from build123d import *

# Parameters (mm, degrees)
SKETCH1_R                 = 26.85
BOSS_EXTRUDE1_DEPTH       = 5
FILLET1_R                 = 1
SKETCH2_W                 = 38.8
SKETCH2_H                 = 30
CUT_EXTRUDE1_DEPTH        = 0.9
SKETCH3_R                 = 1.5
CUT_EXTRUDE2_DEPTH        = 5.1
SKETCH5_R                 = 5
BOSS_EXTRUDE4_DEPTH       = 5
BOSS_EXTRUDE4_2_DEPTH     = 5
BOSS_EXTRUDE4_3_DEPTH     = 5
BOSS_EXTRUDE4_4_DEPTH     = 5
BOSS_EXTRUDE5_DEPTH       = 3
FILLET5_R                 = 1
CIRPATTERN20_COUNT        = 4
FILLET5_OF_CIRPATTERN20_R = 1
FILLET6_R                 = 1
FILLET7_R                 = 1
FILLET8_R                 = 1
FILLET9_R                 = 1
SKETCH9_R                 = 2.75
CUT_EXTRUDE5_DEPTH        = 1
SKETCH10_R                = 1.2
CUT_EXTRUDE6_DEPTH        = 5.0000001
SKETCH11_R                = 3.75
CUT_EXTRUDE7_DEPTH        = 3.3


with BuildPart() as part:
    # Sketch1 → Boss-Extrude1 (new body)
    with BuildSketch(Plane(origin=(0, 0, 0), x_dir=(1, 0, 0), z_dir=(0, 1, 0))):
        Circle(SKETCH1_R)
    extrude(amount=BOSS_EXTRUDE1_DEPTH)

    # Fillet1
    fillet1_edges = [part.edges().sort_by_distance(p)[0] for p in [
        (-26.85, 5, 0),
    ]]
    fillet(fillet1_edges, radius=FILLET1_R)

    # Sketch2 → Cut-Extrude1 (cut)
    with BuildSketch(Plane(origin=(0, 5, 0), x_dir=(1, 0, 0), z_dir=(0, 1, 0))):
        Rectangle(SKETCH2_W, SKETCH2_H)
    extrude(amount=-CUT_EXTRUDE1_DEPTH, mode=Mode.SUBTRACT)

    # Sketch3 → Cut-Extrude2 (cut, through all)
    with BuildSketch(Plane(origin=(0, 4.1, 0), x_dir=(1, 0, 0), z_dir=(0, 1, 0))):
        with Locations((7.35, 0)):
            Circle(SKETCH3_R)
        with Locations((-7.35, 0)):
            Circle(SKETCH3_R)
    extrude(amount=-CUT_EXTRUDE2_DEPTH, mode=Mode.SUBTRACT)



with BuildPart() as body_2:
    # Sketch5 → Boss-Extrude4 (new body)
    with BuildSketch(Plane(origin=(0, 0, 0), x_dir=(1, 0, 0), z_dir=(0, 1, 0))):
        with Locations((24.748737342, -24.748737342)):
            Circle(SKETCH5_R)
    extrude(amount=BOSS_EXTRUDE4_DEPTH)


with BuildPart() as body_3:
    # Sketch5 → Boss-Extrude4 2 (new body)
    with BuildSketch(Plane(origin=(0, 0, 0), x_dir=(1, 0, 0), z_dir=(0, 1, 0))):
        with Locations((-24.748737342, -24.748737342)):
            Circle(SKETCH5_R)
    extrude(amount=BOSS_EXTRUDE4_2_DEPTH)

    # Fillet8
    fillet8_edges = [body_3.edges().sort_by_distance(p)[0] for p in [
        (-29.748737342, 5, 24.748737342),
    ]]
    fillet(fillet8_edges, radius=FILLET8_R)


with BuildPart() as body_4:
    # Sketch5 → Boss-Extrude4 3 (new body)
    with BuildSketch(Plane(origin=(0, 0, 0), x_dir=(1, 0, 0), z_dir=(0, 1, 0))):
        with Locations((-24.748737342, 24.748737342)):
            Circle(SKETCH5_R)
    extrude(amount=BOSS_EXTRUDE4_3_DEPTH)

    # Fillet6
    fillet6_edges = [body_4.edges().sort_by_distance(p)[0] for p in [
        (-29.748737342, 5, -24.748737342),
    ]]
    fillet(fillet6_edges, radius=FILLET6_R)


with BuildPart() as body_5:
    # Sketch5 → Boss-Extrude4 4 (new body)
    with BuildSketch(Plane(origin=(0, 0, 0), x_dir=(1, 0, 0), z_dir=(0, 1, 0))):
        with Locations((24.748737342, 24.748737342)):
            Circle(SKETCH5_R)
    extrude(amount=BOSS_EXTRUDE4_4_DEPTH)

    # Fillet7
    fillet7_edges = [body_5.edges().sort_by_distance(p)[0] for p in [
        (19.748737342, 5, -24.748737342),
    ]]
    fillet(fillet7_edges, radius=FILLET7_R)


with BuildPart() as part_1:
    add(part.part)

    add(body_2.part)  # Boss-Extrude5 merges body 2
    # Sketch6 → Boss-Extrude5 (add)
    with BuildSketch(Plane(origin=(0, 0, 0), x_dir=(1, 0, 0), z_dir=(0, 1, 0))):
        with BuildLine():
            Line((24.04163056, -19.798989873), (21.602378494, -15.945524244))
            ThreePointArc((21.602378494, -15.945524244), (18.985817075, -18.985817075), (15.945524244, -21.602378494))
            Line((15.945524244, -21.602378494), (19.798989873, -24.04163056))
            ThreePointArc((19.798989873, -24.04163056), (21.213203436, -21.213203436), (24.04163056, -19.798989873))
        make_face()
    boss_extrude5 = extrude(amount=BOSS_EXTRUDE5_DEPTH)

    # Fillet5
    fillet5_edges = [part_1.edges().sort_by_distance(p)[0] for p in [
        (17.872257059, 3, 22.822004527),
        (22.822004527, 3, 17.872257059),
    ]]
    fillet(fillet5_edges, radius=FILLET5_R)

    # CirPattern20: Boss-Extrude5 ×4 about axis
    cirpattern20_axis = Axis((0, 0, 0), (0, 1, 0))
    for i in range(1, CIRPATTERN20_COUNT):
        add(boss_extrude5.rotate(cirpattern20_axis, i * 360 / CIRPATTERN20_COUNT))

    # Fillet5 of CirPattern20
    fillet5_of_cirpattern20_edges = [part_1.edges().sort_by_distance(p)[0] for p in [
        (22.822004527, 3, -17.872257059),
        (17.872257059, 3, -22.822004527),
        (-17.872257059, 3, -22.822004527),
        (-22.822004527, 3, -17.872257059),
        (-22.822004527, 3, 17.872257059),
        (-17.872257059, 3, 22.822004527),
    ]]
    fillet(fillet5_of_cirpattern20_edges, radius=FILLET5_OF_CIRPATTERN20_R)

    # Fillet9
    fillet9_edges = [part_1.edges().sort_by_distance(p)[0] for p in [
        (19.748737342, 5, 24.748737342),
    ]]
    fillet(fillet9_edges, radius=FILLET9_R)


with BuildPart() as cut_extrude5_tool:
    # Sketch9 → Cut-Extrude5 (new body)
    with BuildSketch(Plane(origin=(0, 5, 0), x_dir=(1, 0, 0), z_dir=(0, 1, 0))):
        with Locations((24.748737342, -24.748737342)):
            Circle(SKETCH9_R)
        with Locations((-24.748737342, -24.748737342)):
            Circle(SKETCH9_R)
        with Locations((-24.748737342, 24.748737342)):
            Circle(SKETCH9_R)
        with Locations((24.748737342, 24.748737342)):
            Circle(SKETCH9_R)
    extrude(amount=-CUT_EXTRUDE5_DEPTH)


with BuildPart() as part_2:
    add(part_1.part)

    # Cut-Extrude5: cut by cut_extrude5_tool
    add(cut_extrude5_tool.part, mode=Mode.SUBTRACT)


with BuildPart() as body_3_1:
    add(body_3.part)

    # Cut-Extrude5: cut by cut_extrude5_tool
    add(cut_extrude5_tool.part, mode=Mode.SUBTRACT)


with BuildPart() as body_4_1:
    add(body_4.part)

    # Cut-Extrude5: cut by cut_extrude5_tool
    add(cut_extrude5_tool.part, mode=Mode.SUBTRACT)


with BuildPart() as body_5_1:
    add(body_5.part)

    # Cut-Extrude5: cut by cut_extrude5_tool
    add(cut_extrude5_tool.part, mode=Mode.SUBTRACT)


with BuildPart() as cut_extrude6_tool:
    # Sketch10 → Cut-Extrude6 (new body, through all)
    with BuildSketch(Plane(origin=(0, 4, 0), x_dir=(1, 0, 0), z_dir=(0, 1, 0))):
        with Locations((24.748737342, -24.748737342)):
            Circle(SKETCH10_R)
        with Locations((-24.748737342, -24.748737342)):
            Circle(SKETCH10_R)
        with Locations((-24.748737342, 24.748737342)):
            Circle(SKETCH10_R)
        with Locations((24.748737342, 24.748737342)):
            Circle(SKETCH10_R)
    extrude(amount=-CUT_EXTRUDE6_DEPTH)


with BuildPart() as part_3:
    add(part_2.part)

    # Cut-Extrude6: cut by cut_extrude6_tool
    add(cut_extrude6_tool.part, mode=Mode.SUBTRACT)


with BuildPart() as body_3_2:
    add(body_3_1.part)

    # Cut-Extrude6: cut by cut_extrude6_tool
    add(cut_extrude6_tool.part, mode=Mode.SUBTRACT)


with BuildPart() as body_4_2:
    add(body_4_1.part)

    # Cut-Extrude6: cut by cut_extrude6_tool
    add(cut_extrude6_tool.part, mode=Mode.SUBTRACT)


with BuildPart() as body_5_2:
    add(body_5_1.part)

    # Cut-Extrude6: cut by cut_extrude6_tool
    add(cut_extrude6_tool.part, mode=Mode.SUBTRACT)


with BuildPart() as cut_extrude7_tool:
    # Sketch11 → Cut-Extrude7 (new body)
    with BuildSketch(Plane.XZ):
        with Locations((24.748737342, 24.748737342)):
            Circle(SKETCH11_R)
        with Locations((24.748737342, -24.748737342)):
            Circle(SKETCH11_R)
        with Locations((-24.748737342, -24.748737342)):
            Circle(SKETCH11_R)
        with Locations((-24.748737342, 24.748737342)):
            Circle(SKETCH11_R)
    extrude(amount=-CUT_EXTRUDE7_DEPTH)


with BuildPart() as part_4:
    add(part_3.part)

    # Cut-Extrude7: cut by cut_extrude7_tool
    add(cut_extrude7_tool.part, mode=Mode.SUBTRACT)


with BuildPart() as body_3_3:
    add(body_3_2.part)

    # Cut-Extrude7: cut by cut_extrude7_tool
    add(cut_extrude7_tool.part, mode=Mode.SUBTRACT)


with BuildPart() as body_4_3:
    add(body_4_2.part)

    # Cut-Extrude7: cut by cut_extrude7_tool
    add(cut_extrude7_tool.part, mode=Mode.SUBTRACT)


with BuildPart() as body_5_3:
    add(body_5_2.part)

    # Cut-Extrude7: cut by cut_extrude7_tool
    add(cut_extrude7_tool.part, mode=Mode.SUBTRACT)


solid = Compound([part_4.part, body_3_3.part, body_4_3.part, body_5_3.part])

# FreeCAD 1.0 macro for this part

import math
import FreeCAD as App
import Part
import Sketcher

V = App.Vector
Q = App.Units.Quantity


def edges_at(feature, points):
    """Names of the edges that pass closest to the given points."""
    edges = feature.Shape.Edges
    near = lambda p: min(range(len(edges)), key=lambda i: edges[i].distToShape(Part.Vertex(*p))[0])
    return sorted({f"Edge{near(p) + 1}" for p in points})

doc = App.newDocument("Part")
body = doc.addObject("PartDesign::Body", "Body")

# Sketch on XZ plane
sketch1 = doc.addObject("Sketcher::SketchObject", "Sketch")
body.addObject(sketch1)
sketch1.AttachmentSupport = (doc.XZ_Plane, [""])
sketch1.MapMode = "FlatFace"
sketch1.addGeometry(Part.Circle(V(0, 0, 0), V(0, 0, 1), 27), False)
sketch1.addConstraint(Sketcher.Constraint("Coincident", 0, 3, -1, 1))
sketch1.addConstraint(Sketcher.Constraint("Diameter", 0, Q("53.7 mm")))
pad1 = doc.addObject("PartDesign::Pad", "Pad")
body.addObject(pad1)
pad1.Profile = sketch1
pad1.Length = 5
pad1.Reversed = True
doc.recompute()

fillet = doc.addObject("PartDesign::Fillet", "Fillet")
body.addObject(fillet)
fillet.Base = (pad1, edges_at(pad1, [(-26.85, 5, 0)]))
fillet.Radius = 1

# Sketch on XZ plane
sketch2 = doc.addObject("Sketcher::SketchObject", "Sketch001")
body.addObject(sketch2)
sketch2.AttachmentSupport = (doc.XZ_Plane, [""])
sketch2.MapMode = "FlatFace"
sketch2.AttachmentOffset = App.Placement(V(0, 0, -5), App.Rotation())
sketch2.addGeometry(Part.LineSegment(V(-19, -15, 0), V(-19, 15, 0)), False)
sketch2.addGeometry(Part.LineSegment(V(-19, 15, 0), V(19, 15, 0)), False)
sketch2.addGeometry(Part.LineSegment(V(19, 15, 0), V(19, -15, 0)), False)
sketch2.addGeometry(Part.LineSegment(V(19, -15, 0), V(-19, -15, 0)), False)
sketch2.addConstraint(Sketcher.Constraint("Coincident", 0, 2, 1, 1))
sketch2.addConstraint(Sketcher.Constraint("Coincident", 1, 2, 2, 1))
sketch2.addConstraint(Sketcher.Constraint("Coincident", 2, 2, 3, 1))
sketch2.addConstraint(Sketcher.Constraint("Coincident", 3, 2, 0, 1))
sketch2.addConstraint(Sketcher.Constraint("Vertical", 0))
sketch2.addConstraint(Sketcher.Constraint("Horizontal", 1))
sketch2.addConstraint(Sketcher.Constraint("Vertical", 2))
sketch2.addConstraint(Sketcher.Constraint("Horizontal", 3))
sketch2.addConstraint(Sketcher.Constraint("Symmetric", 0, 2, 2, 2, -1, 1))
sketch2.addConstraint(Sketcher.Constraint("DistanceY", 0, 1, 0, 2, Q("30 mm")))
sketch2.addConstraint(Sketcher.Constraint("DistanceX", 1, 1, 1, 2, Q("38.8 mm")))
pocket1 = doc.addObject("PartDesign::Pocket", "Pocket")
body.addObject(pocket1)
pocket1.Profile = sketch2
pocket1.Length = 0.9
pocket1.Reversed = True

# Sketch on XZ plane
sketch3 = doc.addObject("Sketcher::SketchObject", "Sketch002")
body.addObject(sketch3)
sketch3.AttachmentSupport = (doc.XZ_Plane, [""])
sketch3.MapMode = "FlatFace"
sketch3.AttachmentOffset = App.Placement(V(0, 0, -4.1), App.Rotation())
sketch3.addGeometry(Part.Circle(V(7.3, 0, 0), V(0, 0, 1), 1.5), False)
sketch3.addGeometry(Part.Circle(V(-7.3, 0, 0), V(0, 0, 1), 1.5), False)
sketch3.addConstraint(Sketcher.Constraint("Equal", 0, 1))
sketch3.addConstraint(Sketcher.Constraint("Symmetric", 0, 3, 1, 3, -1, 1))
sketch3.addConstraint(Sketcher.Constraint("PointOnObject", 0, 3, -1))
sketch3.addConstraint(Sketcher.Constraint("Diameter", 0, Q("3 mm")))
sketch3.addConstraint(Sketcher.Constraint("DistanceX", 1, 3, 0, 3, Q("14.7 mm")))
pocket2 = doc.addObject("PartDesign::Pocket", "Pocket001")
body.addObject(pocket2)
pocket2.Profile = sketch3
pocket2.Type = "ThroughAll"
pocket2.Reversed = True
body2 = doc.addObject("PartDesign::Body", "Body001")

# Sketch on XZ plane
sketch4 = doc.addObject("Sketcher::SketchObject", "Sketch003")
body2.addObject(sketch4)
sketch4.AttachmentSupport = (doc.getObject("XZ_Plane001"), [""])
sketch4.MapMode = "FlatFace"
sketch4.addGeometry(Part.Circle(V(25, 25, 0), V(0, 0, 1), 5), False)
sketch4.addConstraint(Sketcher.Constraint("Diameter", 0, Q("10 mm")))
sketch4.addConstraint(Sketcher.Constraint("DistanceX", -1, 1, 0, 3, Q("24.748737 mm")))
sketch4.addConstraint(Sketcher.Constraint("DistanceY", -1, 1, 0, 3, Q("24.748737 mm")))
pad2 = doc.addObject("PartDesign::Pad", "Pad001")
body2.addObject(pad2)
pad2.Profile = sketch4
pad2.Length = 5
pad2.Reversed = True
body3 = doc.addObject("PartDesign::Body", "Body002")

# Sketch on XZ plane
sketch5 = doc.addObject("Sketcher::SketchObject", "Sketch004")
body3.addObject(sketch5)
sketch5.AttachmentSupport = (doc.getObject("XZ_Plane002"), [""])
sketch5.MapMode = "FlatFace"
sketch5.addGeometry(Part.Circle(V(-25, 25, 0), V(0, 0, 1), 5), False)
sketch5.addConstraint(Sketcher.Constraint("Diameter", 0, Q("10 mm")))
sketch5.addConstraint(Sketcher.Constraint("DistanceX", 0, 3, -1, 1, Q("24.748737 mm")))
sketch5.addConstraint(Sketcher.Constraint("DistanceY", -1, 1, 0, 3, Q("24.748737 mm")))
pad3 = doc.addObject("PartDesign::Pad", "Pad002")
body3.addObject(pad3)
pad3.Profile = sketch5
pad3.Length = 5
pad3.Reversed = True
doc.recompute()

fillet2 = doc.addObject("PartDesign::Fillet", "Fillet001")
body3.addObject(fillet2)
fillet2.Base = (pad3, edges_at(pad3, [(-29.749, 5, 24.749)]))
fillet2.Radius = 1
body4 = doc.addObject("PartDesign::Body", "Body003")

# Sketch on XZ plane
sketch6 = doc.addObject("Sketcher::SketchObject", "Sketch005")
body4.addObject(sketch6)
sketch6.AttachmentSupport = (doc.getObject("XZ_Plane003"), [""])
sketch6.MapMode = "FlatFace"
sketch6.addGeometry(Part.Circle(V(-25, -25, 0), V(0, 0, 1), 5), False)
sketch6.addConstraint(Sketcher.Constraint("Diameter", 0, Q("10 mm")))
sketch6.addConstraint(Sketcher.Constraint("DistanceX", 0, 3, -1, 1, Q("24.748737 mm")))
sketch6.addConstraint(Sketcher.Constraint("DistanceY", 0, 3, -1, 1, Q("24.748737 mm")))
pad4 = doc.addObject("PartDesign::Pad", "Pad003")
body4.addObject(pad4)
pad4.Profile = sketch6
pad4.Length = 5
pad4.Reversed = True
doc.recompute()

fillet3 = doc.addObject("PartDesign::Fillet", "Fillet002")
body4.addObject(fillet3)
fillet3.Base = (pad4, edges_at(pad4, [(-29.749, 5, -24.749)]))
fillet3.Radius = 1
body5 = doc.addObject("PartDesign::Body", "Body004")

# Sketch on XZ plane
sketch7 = doc.addObject("Sketcher::SketchObject", "Sketch006")
body5.addObject(sketch7)
sketch7.AttachmentSupport = (doc.getObject("XZ_Plane004"), [""])
sketch7.MapMode = "FlatFace"
sketch7.addGeometry(Part.Circle(V(25, -25, 0), V(0, 0, 1), 5), False)
sketch7.addConstraint(Sketcher.Constraint("Diameter", 0, Q("10 mm")))
sketch7.addConstraint(Sketcher.Constraint("DistanceX", -1, 1, 0, 3, Q("24.748737 mm")))
sketch7.addConstraint(Sketcher.Constraint("DistanceY", 0, 3, -1, 1, Q("24.748737 mm")))
pad5 = doc.addObject("PartDesign::Pad", "Pad004")
body5.addObject(pad5)
pad5.Profile = sketch7
pad5.Length = 5
pad5.Reversed = True
doc.recompute()

fillet4 = doc.addObject("PartDesign::Fillet", "Fillet003")
body5.addObject(fillet4)
fillet4.Base = (pad5, edges_at(pad5, [(19.749, 5, -24.749)]))
fillet4.Radius = 1
body.AllowCompound = True
doc.recompute()

boolean = doc.addObject("PartDesign::Boolean", "Boolean")
body.addObject(boolean)
boolean.Type = "Fuse"
boolean.addObjects([body2])

# Sketch on XZ plane
sketch8 = doc.addObject("Sketcher::SketchObject", "Sketch007")
body.addObject(sketch8)
sketch8.AttachmentSupport = (doc.XZ_Plane, [""])
sketch8.MapMode = "FlatFace"
sketch8.addGeometry(Part.LineSegment(V(24, 19.8, 0), V(21.6, 15.9, 0)), False)
sketch8.addGeometry(Part.ArcOfCircle(Part.Circle(V(0, 0, 0), V(0, 0, 1), 26.9), math.radians(36.43), math.radians(53.57)), False)
sketch8.addGeometry(Part.LineSegment(V(15.9, 21.6, 0), V(19.8, 24, 0)), False)
sketch8.addGeometry(Part.ArcOfCircle(Part.Circle(V(24.7, 24.7, 0), V(0, 0, 1), 5), math.radians(-172), math.radians(-98)), False)
sketch8.addConstraint(Sketcher.Constraint("Coincident", 0, 2, 1, 1))
sketch8.addConstraint(Sketcher.Constraint("Coincident", 1, 2, 2, 1))
sketch8.addConstraint(Sketcher.Constraint("Coincident", 2, 2, 3, 1))
sketch8.addConstraint(Sketcher.Constraint("Coincident", 3, 2, 0, 1))
sketch8.addConstraint(Sketcher.Constraint("Coincident", 1, 3, -1, 1))
sketch8.addConstraint(Sketcher.Constraint("Equal", 0, 2))
sketch8.addConstraint(Sketcher.Constraint("Radius", 3, Q("5 mm")))
sketch8.addConstraint(Sketcher.Constraint("Radius", 1, Q("26.85 mm")))
sketch8.addConstraint(Sketcher.Constraint("Distance", 0, Q("4.560608 mm")))
sketch8.addConstraint(Sketcher.Constraint("DistanceX", -1, 1, 0, 2, Q("21.602378 mm")))
sketch8.addConstraint(Sketcher.Constraint("DistanceY", -1, 1, 1, 2, Q("21.602378 mm")))
sketch8.addConstraint(Sketcher.Constraint("DistanceX", -1, 1, 2, 2, Q("19.79899 mm")))
sketch8.addConstraint(Sketcher.Constraint("DistanceX", -1, 1, 3, 2, Q("24.041631 mm")))
pad6 = doc.addObject("PartDesign::Pad", "Pad005")
body.addObject(pad6)
pad6.Profile = sketch8
pad6.Length = 3
pad6.Reversed = True
doc.recompute()

fillet5 = doc.addObject("PartDesign::Fillet", "Fillet004")
body.addObject(fillet5)
fillet5.Base = (pad6, edges_at(pad6, [(17.872, 3, 22.822), (22.822, 3, 17.872)]))
fillet5.Radius = 1
doc.recompute()

polarpattern = doc.addObject("PartDesign::PolarPattern", "PolarPattern")
body.addObject(polarpattern)
polarpattern.Originals = [pad6]
polarpattern.Axis = (doc.Y_Axis, [""])
polarpattern.Angle = 360
polarpattern.Occurrences = 4
body.Tip = polarpattern
doc.recompute()

fillet6 = doc.addObject("PartDesign::Fillet", "Fillet005")
body.addObject(fillet6)
fillet6.Base = (polarpattern, edges_at(polarpattern, [
    (22.822, 3, -17.872),
    (17.872, 3, -22.822),
    (-17.872, 3, -22.822),
    (-22.822, 3, -17.872),
    (-22.822, 3, 17.872),
    (-17.872, 3, 22.822),
]))
fillet6.Radius = 1
doc.recompute()

fillet7 = doc.addObject("PartDesign::Fillet", "Fillet006")
body.addObject(fillet7)
fillet7.Base = (fillet6, edges_at(fillet6, [(19.749, 5, 24.749)]))
fillet7.Radius = 1
body6 = doc.addObject("PartDesign::Body", "Body005")
body6.AllowCompound = True

# Sketch on XZ plane
sketch9 = doc.addObject("Sketcher::SketchObject", "Sketch008")
body6.addObject(sketch9)
sketch9.AttachmentSupport = (doc.getObject("XZ_Plane005"), [""])
sketch9.MapMode = "FlatFace"
sketch9.AttachmentOffset = App.Placement(V(0, 0, -5), App.Rotation())
sketch9.addGeometry(Part.Circle(V(24.7, 24.7, 0), V(0, 0, 1), 2.8), False)
sketch9.addGeometry(Part.Circle(V(-24.7, 24.7, 0), V(0, 0, 1), 2.8), False)
sketch9.addGeometry(Part.Circle(V(-24.7, -24.7, 0), V(0, 0, 1), 2.8), False)
sketch9.addGeometry(Part.Circle(V(24.7, -24.7, 0), V(0, 0, 1), 2.8), False)
sketch9.addConstraint(Sketcher.Constraint("Equal", 0, 1))
sketch9.addConstraint(Sketcher.Constraint("Equal", 1, 2))
sketch9.addConstraint(Sketcher.Constraint("Equal", 2, 3))
sketch9.addConstraint(Sketcher.Constraint("Symmetric", 0, 3, 2, 3, -1, 1))
sketch9.addConstraint(Sketcher.Constraint("Symmetric", 1, 3, 3, 3, -1, 1))
sketch9.addConstraint(Sketcher.Constraint("Symmetric", 0, 3, 1, 3, -2))
sketch9.addConstraint(Sketcher.Constraint("Diameter", 0, Q("5.5 mm")))
sketch9.addConstraint(Sketcher.Constraint("DistanceX", -1, 1, 0, 3, Q("24.748737 mm")))
sketch9.addConstraint(Sketcher.Constraint("DistanceY", -1, 1, 0, 3, Q("24.748737 mm")))
pad7 = doc.addObject("PartDesign::Pad", "Pad006")
body6.addObject(pad7)
pad7.Profile = sketch9
pad7.Length = 1
doc.recompute()

body7 = doc.addObject("PartDesign::Body", "Body006")
body7.BaseFeature = body6
boolean2 = doc.addObject("PartDesign::Boolean", "Boolean001")
body.addObject(boolean2)
boolean2.Type = "Cut"
boolean2.addObjects([body7])
doc.recompute()

body8 = doc.addObject("PartDesign::Body", "Body007")
body8.BaseFeature = body6
boolean3 = doc.addObject("PartDesign::Boolean", "Boolean002")
body3.addObject(boolean3)
boolean3.Type = "Cut"
boolean3.addObjects([body8])
doc.recompute()

body9 = doc.addObject("PartDesign::Body", "Body008")
body9.BaseFeature = body6
boolean4 = doc.addObject("PartDesign::Boolean", "Boolean003")
body4.addObject(boolean4)
boolean4.Type = "Cut"
boolean4.addObjects([body9])
doc.recompute()

boolean5 = doc.addObject("PartDesign::Boolean", "Boolean004")
body5.addObject(boolean5)
boolean5.Type = "Cut"
boolean5.addObjects([body6])
body10 = doc.addObject("PartDesign::Body", "Body009")
body10.AllowCompound = True

# Sketch on XZ plane
sketch10 = doc.addObject("Sketcher::SketchObject", "Sketch009")
body10.addObject(sketch10)
sketch10.AttachmentSupport = (doc.getObject("XZ_Plane009"), [""])
sketch10.MapMode = "FlatFace"
sketch10.AttachmentOffset = App.Placement(V(0, 0, -4), App.Rotation())
sketch10.addGeometry(Part.Circle(V(24.7, 24.7, 0), V(0, 0, 1), 1.2), False)
sketch10.addGeometry(Part.Circle(V(-24.7, 24.7, 0), V(0, 0, 1), 1.2), False)
sketch10.addGeometry(Part.Circle(V(-24.7, -24.7, 0), V(0, 0, 1), 1.2), False)
sketch10.addGeometry(Part.Circle(V(24.7, -24.7, 0), V(0, 0, 1), 1.2), False)
sketch10.addConstraint(Sketcher.Constraint("Equal", 0, 1))
sketch10.addConstraint(Sketcher.Constraint("Equal", 1, 2))
sketch10.addConstraint(Sketcher.Constraint("Equal", 2, 3))
sketch10.addConstraint(Sketcher.Constraint("Symmetric", 0, 3, 2, 3, -1, 1))
sketch10.addConstraint(Sketcher.Constraint("Symmetric", 1, 3, 3, 3, -1, 1))
sketch10.addConstraint(Sketcher.Constraint("Symmetric", 0, 3, 1, 3, -2))
sketch10.addConstraint(Sketcher.Constraint("Diameter", 0, Q("2.4 mm")))
sketch10.addConstraint(Sketcher.Constraint("DistanceX", -1, 1, 0, 3, Q("24.748737 mm")))
sketch10.addConstraint(Sketcher.Constraint("DistanceY", -1, 1, 0, 3, Q("24.748737 mm")))
pad8 = doc.addObject("PartDesign::Pad", "Pad007")
body10.addObject(pad8)
pad8.Profile = sketch10
pad8.Length = 5
doc.recompute()

body11 = doc.addObject("PartDesign::Body", "Body010")
body11.BaseFeature = body10
boolean6 = doc.addObject("PartDesign::Boolean", "Boolean005")
body.addObject(boolean6)
boolean6.Type = "Cut"
boolean6.addObjects([body11])
doc.recompute()

body12 = doc.addObject("PartDesign::Body", "Body011")
body12.BaseFeature = body10
boolean7 = doc.addObject("PartDesign::Boolean", "Boolean006")
body3.addObject(boolean7)
boolean7.Type = "Cut"
boolean7.addObjects([body12])
doc.recompute()

body13 = doc.addObject("PartDesign::Body", "Body012")
body13.BaseFeature = body10
boolean8 = doc.addObject("PartDesign::Boolean", "Boolean007")
body4.addObject(boolean8)
boolean8.Type = "Cut"
boolean8.addObjects([body13])
doc.recompute()

boolean9 = doc.addObject("PartDesign::Boolean", "Boolean008")
body5.addObject(boolean9)
boolean9.Type = "Cut"
boolean9.addObjects([body10])
body14 = doc.addObject("PartDesign::Body", "Body013")
body14.AllowCompound = True

# Sketch on XZ plane
sketch11 = doc.addObject("Sketcher::SketchObject", "Sketch010")
body14.addObject(sketch11)
sketch11.AttachmentSupport = (doc.getObject("XZ_Plane013"), [""])
sketch11.MapMode = "FlatFace"
sketch11.addGeometry(Part.Circle(V(24.7, 24.7, 0), V(0, 0, 1), 3.8), False)
sketch11.addGeometry(Part.Circle(V(24.7, -24.7, 0), V(0, 0, 1), 3.8), False)
sketch11.addGeometry(Part.Circle(V(-24.7, -24.7, 0), V(0, 0, 1), 3.8), False)
sketch11.addGeometry(Part.Circle(V(-24.7, 24.7, 0), V(0, 0, 1), 3.8), False)
sketch11.addConstraint(Sketcher.Constraint("Equal", 0, 1))
sketch11.addConstraint(Sketcher.Constraint("Equal", 1, 2))
sketch11.addConstraint(Sketcher.Constraint("Equal", 2, 3))
sketch11.addConstraint(Sketcher.Constraint("Symmetric", 0, 3, 2, 3, -1, 1))
sketch11.addConstraint(Sketcher.Constraint("Symmetric", 1, 3, 3, 3, -1, 1))
sketch11.addConstraint(Sketcher.Constraint("Symmetric", 1, 3, 2, 3, -2))
sketch11.addConstraint(Sketcher.Constraint("Diameter", 0, Q("7.5 mm")))
sketch11.addConstraint(Sketcher.Constraint("DistanceX", -1, 1, 0, 3, Q("24.748737 mm")))
sketch11.addConstraint(Sketcher.Constraint("DistanceY", -1, 1, 0, 3, Q("24.748737 mm")))
pad9 = doc.addObject("PartDesign::Pad", "Pad008")
body14.addObject(pad9)
pad9.Profile = sketch11
pad9.Length = 3.3
pad9.Reversed = True
doc.recompute()

body15 = doc.addObject("PartDesign::Body", "Body014")
body15.BaseFeature = body14
boolean10 = doc.addObject("PartDesign::Boolean", "Boolean009")
body.addObject(boolean10)
boolean10.Type = "Cut"
boolean10.addObjects([body15])
doc.recompute()

body16 = doc.addObject("PartDesign::Body", "Body015")
body16.BaseFeature = body14
boolean11 = doc.addObject("PartDesign::Boolean", "Boolean010")
body3.addObject(boolean11)
boolean11.Type = "Cut"
boolean11.addObjects([body16])
doc.recompute()

body17 = doc.addObject("PartDesign::Body", "Body016")
body17.BaseFeature = body14
boolean12 = doc.addObject("PartDesign::Boolean", "Boolean011")
body4.addObject(boolean12)
boolean12.Type = "Cut"
boolean12.addObjects([body17])
doc.recompute()

boolean13 = doc.addObject("PartDesign::Boolean", "Boolean012")
body5.addObject(boolean13)
boolean13.Type = "Cut"
boolean13.addObjects([body14])

doc.recompute()
